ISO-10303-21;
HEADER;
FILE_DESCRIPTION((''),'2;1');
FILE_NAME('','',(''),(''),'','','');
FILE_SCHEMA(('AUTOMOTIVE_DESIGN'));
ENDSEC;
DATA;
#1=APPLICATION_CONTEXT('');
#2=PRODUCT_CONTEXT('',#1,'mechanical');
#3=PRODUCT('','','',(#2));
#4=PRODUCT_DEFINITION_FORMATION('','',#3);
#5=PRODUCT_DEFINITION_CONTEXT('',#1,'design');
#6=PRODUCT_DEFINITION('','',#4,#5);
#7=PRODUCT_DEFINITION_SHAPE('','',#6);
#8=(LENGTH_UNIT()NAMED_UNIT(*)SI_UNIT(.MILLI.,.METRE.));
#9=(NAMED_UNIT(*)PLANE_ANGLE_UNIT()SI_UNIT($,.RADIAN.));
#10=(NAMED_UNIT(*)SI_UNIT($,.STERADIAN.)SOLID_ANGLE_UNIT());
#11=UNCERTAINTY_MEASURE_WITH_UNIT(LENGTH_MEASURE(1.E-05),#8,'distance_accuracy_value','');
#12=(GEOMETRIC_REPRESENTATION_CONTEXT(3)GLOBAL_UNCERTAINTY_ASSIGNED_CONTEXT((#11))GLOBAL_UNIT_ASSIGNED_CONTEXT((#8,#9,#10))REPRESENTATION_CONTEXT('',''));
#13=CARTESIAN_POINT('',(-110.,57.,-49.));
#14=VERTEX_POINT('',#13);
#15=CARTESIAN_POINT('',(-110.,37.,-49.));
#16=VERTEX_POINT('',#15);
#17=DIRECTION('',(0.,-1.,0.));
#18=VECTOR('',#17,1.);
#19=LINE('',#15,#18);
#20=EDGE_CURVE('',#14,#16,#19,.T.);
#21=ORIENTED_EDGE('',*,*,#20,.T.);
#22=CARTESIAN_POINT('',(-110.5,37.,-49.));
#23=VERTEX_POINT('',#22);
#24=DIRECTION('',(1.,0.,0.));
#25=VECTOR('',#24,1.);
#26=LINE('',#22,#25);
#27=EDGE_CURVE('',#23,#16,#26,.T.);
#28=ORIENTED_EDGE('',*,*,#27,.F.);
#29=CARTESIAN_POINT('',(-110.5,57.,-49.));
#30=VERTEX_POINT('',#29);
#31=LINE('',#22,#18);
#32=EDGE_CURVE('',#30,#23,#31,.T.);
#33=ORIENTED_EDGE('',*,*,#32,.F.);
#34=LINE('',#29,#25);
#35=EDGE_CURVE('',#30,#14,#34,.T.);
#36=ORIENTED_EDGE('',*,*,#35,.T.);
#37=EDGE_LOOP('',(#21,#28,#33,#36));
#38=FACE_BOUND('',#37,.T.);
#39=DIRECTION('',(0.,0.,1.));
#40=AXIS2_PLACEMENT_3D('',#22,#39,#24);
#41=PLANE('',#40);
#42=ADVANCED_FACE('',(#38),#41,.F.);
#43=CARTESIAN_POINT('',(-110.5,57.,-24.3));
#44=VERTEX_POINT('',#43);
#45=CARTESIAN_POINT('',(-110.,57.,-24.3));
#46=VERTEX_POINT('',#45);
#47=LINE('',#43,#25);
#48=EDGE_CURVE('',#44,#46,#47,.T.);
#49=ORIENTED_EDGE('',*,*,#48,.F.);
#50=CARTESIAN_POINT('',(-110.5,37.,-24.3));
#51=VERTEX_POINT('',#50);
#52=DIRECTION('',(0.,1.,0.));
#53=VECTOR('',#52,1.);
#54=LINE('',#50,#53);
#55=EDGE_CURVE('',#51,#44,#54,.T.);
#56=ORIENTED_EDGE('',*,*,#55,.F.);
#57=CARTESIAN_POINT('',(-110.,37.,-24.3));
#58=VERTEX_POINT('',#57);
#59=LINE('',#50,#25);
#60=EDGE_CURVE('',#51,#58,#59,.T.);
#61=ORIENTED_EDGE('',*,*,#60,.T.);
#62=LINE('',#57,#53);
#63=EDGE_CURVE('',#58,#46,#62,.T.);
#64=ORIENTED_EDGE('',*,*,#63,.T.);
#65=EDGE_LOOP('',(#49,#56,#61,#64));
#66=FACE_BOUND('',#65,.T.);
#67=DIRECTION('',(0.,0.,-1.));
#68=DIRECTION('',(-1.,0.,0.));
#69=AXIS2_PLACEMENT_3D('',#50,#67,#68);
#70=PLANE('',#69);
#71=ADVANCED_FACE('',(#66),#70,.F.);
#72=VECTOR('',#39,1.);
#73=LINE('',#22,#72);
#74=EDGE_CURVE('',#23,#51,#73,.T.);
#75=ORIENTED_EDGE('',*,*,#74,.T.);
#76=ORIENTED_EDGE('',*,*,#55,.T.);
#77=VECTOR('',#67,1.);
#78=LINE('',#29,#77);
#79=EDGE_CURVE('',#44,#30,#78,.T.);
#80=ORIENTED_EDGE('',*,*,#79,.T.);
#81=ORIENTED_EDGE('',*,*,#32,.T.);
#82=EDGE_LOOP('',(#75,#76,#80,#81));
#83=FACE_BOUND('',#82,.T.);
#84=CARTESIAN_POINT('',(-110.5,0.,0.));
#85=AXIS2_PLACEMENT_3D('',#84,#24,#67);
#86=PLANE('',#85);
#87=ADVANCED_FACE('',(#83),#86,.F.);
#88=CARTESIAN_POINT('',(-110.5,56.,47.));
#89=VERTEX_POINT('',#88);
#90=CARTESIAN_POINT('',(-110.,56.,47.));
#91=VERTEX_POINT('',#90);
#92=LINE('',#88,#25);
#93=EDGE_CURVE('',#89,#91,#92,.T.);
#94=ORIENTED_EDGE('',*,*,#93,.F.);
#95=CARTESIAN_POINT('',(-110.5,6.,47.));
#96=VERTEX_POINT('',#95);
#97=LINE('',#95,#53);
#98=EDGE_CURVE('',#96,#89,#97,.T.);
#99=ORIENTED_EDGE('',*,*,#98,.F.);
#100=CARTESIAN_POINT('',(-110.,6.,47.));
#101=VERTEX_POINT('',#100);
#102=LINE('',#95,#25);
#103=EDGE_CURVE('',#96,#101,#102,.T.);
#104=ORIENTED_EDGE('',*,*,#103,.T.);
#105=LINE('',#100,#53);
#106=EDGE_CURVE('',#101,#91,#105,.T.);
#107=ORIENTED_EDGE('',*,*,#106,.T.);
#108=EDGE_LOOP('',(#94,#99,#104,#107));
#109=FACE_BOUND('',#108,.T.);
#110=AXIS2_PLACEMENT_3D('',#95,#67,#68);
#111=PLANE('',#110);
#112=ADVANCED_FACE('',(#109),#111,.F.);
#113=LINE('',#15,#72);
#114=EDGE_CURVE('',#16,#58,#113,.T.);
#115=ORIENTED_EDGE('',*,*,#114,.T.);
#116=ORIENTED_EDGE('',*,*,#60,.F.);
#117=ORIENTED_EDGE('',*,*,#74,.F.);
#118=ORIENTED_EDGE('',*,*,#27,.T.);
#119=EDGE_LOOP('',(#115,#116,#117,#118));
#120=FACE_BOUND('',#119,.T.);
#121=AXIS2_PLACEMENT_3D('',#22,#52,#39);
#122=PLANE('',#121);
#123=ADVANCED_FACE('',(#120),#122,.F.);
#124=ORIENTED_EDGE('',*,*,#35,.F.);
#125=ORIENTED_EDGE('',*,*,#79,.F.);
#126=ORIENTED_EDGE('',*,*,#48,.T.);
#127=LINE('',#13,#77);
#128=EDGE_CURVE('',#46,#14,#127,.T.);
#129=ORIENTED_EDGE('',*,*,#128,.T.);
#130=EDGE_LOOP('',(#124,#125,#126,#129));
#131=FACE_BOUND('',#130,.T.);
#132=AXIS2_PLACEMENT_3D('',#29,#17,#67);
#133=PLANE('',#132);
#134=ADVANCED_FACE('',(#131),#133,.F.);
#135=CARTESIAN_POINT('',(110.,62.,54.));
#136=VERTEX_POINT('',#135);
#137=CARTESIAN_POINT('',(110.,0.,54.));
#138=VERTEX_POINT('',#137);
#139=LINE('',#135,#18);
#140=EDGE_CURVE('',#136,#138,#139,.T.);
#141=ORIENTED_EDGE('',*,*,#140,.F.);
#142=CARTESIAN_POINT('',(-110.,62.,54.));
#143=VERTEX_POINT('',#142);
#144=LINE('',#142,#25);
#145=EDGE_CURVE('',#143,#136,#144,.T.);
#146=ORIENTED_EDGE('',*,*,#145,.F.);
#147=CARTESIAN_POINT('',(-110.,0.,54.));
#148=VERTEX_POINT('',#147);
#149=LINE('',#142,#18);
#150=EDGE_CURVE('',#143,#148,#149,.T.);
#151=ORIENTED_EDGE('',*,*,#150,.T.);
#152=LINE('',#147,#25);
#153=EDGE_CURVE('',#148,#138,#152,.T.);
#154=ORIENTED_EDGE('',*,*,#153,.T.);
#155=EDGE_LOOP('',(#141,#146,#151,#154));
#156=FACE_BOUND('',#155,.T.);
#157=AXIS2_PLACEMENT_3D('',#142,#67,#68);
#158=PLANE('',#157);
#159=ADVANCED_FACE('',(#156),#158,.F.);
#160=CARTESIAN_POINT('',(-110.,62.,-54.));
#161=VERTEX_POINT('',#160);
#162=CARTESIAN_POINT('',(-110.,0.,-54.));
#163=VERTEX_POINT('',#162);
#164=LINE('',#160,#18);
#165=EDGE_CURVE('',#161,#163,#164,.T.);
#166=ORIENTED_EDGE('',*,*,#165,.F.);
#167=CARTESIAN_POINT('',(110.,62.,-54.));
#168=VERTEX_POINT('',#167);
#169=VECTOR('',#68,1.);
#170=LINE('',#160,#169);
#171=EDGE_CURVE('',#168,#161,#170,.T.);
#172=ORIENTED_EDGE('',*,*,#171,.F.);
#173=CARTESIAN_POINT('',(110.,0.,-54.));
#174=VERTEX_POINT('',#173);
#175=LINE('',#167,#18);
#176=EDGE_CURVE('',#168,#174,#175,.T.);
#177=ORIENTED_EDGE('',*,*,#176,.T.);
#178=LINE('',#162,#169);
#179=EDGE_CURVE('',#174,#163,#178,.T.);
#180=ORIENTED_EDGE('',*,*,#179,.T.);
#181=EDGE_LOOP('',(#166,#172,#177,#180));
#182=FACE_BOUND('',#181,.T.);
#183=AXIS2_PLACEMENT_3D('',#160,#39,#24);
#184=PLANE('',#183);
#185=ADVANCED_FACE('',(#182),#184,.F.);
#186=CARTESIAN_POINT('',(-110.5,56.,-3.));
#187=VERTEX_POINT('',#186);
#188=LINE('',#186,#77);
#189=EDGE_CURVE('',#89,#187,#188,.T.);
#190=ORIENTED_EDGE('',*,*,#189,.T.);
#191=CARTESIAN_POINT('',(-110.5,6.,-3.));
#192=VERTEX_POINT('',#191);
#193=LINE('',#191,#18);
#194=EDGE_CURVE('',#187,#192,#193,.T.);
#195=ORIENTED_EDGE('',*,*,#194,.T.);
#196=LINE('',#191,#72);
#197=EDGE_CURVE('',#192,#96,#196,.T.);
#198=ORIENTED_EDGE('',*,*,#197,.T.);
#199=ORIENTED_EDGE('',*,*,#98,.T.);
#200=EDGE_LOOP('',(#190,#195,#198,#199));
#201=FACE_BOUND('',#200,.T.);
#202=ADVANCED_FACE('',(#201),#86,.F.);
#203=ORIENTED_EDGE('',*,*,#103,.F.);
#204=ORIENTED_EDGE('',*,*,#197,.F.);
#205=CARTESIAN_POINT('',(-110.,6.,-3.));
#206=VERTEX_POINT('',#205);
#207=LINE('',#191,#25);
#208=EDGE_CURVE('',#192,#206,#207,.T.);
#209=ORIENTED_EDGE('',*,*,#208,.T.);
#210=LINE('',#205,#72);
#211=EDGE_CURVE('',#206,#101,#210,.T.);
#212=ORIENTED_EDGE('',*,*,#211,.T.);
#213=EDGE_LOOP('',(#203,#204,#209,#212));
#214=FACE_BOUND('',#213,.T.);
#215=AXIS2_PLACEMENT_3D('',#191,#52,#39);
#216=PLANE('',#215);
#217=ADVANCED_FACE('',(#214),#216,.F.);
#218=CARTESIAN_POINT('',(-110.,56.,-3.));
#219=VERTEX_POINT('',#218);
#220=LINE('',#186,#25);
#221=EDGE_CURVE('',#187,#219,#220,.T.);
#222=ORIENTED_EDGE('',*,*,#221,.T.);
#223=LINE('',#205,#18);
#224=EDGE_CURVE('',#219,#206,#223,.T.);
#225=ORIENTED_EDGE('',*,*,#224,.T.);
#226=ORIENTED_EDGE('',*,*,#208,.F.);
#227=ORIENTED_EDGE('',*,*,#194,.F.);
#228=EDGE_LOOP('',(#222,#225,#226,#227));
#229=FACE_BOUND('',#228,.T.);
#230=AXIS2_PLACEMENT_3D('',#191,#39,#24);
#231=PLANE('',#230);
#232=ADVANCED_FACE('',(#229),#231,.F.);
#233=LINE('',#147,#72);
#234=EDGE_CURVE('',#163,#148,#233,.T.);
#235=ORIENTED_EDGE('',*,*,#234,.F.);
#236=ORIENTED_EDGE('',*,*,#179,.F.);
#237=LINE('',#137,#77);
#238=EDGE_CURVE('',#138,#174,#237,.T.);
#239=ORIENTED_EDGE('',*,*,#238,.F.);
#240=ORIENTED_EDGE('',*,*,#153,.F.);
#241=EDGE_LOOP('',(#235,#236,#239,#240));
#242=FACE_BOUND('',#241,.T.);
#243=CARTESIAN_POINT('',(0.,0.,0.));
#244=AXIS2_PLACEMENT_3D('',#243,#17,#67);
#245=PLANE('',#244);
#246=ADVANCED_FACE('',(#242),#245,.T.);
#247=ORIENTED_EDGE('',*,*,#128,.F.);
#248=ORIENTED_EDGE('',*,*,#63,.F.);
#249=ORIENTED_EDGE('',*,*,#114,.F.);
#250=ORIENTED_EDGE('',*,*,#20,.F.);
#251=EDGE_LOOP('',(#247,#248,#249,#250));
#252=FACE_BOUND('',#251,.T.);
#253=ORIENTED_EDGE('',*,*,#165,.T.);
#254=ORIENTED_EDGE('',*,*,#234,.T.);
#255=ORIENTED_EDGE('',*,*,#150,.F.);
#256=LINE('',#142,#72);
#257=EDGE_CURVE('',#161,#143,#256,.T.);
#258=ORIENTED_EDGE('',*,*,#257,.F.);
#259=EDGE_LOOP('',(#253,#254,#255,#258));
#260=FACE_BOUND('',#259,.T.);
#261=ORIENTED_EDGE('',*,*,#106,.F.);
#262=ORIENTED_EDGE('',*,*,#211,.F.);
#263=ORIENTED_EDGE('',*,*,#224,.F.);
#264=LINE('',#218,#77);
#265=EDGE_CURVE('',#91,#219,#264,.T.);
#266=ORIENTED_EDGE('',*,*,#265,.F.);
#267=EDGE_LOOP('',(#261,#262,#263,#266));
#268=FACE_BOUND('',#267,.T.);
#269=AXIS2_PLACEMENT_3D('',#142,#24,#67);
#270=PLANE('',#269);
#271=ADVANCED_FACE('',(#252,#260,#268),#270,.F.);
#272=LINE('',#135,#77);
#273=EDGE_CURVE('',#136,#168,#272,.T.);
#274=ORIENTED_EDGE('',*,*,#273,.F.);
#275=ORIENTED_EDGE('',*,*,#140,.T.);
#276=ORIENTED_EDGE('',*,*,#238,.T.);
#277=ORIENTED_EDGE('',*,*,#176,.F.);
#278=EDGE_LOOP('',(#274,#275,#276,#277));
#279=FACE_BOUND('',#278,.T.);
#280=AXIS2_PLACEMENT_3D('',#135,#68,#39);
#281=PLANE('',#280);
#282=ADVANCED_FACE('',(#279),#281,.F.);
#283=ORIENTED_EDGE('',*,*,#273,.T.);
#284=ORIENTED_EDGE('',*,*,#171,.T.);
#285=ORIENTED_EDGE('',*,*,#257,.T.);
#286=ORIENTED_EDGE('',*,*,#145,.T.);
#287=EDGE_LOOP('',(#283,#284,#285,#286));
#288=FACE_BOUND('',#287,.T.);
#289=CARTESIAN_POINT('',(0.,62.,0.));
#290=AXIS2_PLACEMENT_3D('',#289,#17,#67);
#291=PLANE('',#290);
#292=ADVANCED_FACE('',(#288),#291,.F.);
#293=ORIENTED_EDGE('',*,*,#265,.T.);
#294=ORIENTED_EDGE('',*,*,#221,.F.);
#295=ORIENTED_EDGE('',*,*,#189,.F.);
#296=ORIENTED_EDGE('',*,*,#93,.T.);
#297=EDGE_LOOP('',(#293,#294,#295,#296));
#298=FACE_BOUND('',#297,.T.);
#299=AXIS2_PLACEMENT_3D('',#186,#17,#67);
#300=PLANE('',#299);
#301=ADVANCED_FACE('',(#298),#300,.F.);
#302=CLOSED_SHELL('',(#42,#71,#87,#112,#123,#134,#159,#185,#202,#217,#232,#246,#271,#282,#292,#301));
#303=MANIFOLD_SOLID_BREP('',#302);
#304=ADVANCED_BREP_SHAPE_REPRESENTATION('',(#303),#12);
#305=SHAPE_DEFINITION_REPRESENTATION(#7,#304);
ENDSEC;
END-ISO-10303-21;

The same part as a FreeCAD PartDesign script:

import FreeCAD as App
import Part
import Sketcher
from FreeCAD import Vector
Q = App.Units.Quantity

doc = App.newDocument("Part")
params = doc.addObject("Spreadsheet::Sheet", "Params")
for row, (alias, value) in enumerate([
    ("sketch1_width", "220 mm"),
    ("sketch1_height", "108 mm"),
    ("pad1_length", "62 mm"),
    ("sketch2_width", "20 mm"),
    ("sketch2_width2", "50 mm"),
    ("sketch2_height", "24.7 mm"),
    ("pad2_length", "0.5 mm"),
], start=1):
    params.set(f"A{row}", alias)
    params.set(f"B{row}", "=" + value)
    params.setAlias(f"B{row}", alias)

body = doc.addObject("PartDesign::Body", "Body")

sketch1 = body.newObject("Sketcher::SketchObject", "Sketch")
sketch1.AttachmentSupport = (doc.getObject("XZ_Plane"), [""])
sketch1.MapMode = "FlatFace"
sketch1.addGeometry([
    Part.LineSegment(Vector(-110, -54, 0), Vector(-110, 54, 0)),
    Part.LineSegment(Vector(-110, 54, 0), Vector(110, 54, 0)),
    Part.LineSegment(Vector(110, 54, 0), Vector(110, -54, 0)),
    Part.LineSegment(Vector(110, -54, 0), Vector(-110, -54, 0)),
], False)
sketch1.addConstraint([
    Sketcher.Constraint("Coincident", 0, 2, 1, 1),
    Sketcher.Constraint("Coincident", 1, 2, 2, 1),
    Sketcher.Constraint("Coincident", 2, 2, 3, 1),
    Sketcher.Constraint("Coincident", 3, 2, 0, 1),
    Sketcher.Constraint("Vertical", 0),
    Sketcher.Constraint("Horizontal", 1),
    Sketcher.Constraint("Vertical", 2),
    Sketcher.Constraint("Horizontal", 3),
    Sketcher.Constraint("Symmetric", 0, 2, 2, 2, -1, 1),
    Sketcher.Constraint("DistanceX", 1, 1, 1, 2, Q("220 mm")),
    Sketcher.Constraint("DistanceY", 0, 1, 0, 2, Q("108 mm")),
])
sketch1.setExpression("Constraints[9]", "Params.sketch1_width")
sketch1.setExpression("Constraints[10]", "Params.sketch1_height")
pad1 = body.newObject("PartDesign::Pad", "Pad")
pad1.Profile = sketch1
pad1.setExpression("Length", "Params.pad1_length")
pad1.Reversed = True

sketch2 = body.newObject("Sketcher::SketchObject", "Sketch001")
sketch2.AttachmentSupport = (doc.getObject("YZ_Plane"), [""])
sketch2.MapMode = "FlatFace"
sketch2.AttachmentOffset = App.Placement(Vector(0, 0, -110), App.Rotation())
sketch2.addGeometry([
    Part.LineSegment(Vector(57, -49, 0), Vector(37, -49, 0)),
    Part.LineSegment(Vector(37, -49, 0), Vector(37, -24, 0)),
    Part.LineSegment(Vector(37, -24, 0), Vector(57, -24, 0)),
    Part.LineSegment(Vector(57, -24, 0), Vector(57, -49, 0)),
    Part.LineSegment(Vector(56, -3, 0), Vector(6, -3, 0)),
    Part.LineSegment(Vector(6, -3, 0), Vector(6, 47, 0)),
    Part.LineSegment(Vector(6, 47, 0), Vector(56, 47, 0)),
    Part.LineSegment(Vector(56, 47, 0), Vector(56, -3, 0)),
], False)
sketch2.addConstraint([
    Sketcher.Constraint("Coincident", 0, 2, 1, 1),
    Sketcher.Constraint("Coincident", 1, 2, 2, 1),
    Sketcher.Constraint("Coincident", 2, 2, 3, 1),
    Sketcher.Constraint("Coincident", 3, 2, 0, 1),
    Sketcher.Constraint("Coincident", 4, 2, 5, 1),
    Sketcher.Constraint("Coincident", 5, 2, 6, 1),
    Sketcher.Constraint("Coincident", 6, 2, 7, 1),
    Sketcher.Constraint("Coincident", 7, 2, 4, 1),
    Sketcher.Constraint("Horizontal", 0),
    Sketcher.Constraint("Vertical", 1),
    Sketcher.Constraint("Horizontal", 2),
    Sketcher.Constraint("Vertical", 3),
    Sketcher.Constraint("Horizontal", 4),
    Sketcher.Constraint("Vertical", 5),
    Sketcher.Constraint("Horizontal", 6),
    Sketcher.Constraint("Vertical", 7),
    Sketcher.Constraint("Equal", 6, 5),
    Sketcher.Constraint("DistanceX", 0, 2, 0, 1, Q("20 mm")),
    Sketcher.Constraint("DistanceX", 4, 2, 4, 1, Q("50 mm")),
    Sketcher.Constraint("DistanceY", 1, 1, 1, 2, Q("24.7 mm")),
    Sketcher.Constraint("DistanceX", -1, 1, 0, 2, Q("37 mm")),
    Sketcher.Constraint("DistanceY", 0, 2, -1, 1, Q("49 mm")),
    Sketcher.Constraint("DistanceX", -1, 1, 4, 2, Q("6 mm")),
    Sketcher.Constraint("DistanceY", 4, 2, -1, 1, Q("3 mm")),
])
sketch2.setExpression("Constraints[17]", "Params.sketch2_width")
sketch2.setExpression("Constraints[18]", "Params.sketch2_width2")
sketch2.setExpression("Constraints[19]", "Params.sketch2_height")
pad2 = body.newObject("PartDesign::Pad", "Pad001")
pad2.Profile = sketch2
pad2.setExpression("Length", "Params.pad2_length")
pad2.Reversed = True

doc.recompute()
